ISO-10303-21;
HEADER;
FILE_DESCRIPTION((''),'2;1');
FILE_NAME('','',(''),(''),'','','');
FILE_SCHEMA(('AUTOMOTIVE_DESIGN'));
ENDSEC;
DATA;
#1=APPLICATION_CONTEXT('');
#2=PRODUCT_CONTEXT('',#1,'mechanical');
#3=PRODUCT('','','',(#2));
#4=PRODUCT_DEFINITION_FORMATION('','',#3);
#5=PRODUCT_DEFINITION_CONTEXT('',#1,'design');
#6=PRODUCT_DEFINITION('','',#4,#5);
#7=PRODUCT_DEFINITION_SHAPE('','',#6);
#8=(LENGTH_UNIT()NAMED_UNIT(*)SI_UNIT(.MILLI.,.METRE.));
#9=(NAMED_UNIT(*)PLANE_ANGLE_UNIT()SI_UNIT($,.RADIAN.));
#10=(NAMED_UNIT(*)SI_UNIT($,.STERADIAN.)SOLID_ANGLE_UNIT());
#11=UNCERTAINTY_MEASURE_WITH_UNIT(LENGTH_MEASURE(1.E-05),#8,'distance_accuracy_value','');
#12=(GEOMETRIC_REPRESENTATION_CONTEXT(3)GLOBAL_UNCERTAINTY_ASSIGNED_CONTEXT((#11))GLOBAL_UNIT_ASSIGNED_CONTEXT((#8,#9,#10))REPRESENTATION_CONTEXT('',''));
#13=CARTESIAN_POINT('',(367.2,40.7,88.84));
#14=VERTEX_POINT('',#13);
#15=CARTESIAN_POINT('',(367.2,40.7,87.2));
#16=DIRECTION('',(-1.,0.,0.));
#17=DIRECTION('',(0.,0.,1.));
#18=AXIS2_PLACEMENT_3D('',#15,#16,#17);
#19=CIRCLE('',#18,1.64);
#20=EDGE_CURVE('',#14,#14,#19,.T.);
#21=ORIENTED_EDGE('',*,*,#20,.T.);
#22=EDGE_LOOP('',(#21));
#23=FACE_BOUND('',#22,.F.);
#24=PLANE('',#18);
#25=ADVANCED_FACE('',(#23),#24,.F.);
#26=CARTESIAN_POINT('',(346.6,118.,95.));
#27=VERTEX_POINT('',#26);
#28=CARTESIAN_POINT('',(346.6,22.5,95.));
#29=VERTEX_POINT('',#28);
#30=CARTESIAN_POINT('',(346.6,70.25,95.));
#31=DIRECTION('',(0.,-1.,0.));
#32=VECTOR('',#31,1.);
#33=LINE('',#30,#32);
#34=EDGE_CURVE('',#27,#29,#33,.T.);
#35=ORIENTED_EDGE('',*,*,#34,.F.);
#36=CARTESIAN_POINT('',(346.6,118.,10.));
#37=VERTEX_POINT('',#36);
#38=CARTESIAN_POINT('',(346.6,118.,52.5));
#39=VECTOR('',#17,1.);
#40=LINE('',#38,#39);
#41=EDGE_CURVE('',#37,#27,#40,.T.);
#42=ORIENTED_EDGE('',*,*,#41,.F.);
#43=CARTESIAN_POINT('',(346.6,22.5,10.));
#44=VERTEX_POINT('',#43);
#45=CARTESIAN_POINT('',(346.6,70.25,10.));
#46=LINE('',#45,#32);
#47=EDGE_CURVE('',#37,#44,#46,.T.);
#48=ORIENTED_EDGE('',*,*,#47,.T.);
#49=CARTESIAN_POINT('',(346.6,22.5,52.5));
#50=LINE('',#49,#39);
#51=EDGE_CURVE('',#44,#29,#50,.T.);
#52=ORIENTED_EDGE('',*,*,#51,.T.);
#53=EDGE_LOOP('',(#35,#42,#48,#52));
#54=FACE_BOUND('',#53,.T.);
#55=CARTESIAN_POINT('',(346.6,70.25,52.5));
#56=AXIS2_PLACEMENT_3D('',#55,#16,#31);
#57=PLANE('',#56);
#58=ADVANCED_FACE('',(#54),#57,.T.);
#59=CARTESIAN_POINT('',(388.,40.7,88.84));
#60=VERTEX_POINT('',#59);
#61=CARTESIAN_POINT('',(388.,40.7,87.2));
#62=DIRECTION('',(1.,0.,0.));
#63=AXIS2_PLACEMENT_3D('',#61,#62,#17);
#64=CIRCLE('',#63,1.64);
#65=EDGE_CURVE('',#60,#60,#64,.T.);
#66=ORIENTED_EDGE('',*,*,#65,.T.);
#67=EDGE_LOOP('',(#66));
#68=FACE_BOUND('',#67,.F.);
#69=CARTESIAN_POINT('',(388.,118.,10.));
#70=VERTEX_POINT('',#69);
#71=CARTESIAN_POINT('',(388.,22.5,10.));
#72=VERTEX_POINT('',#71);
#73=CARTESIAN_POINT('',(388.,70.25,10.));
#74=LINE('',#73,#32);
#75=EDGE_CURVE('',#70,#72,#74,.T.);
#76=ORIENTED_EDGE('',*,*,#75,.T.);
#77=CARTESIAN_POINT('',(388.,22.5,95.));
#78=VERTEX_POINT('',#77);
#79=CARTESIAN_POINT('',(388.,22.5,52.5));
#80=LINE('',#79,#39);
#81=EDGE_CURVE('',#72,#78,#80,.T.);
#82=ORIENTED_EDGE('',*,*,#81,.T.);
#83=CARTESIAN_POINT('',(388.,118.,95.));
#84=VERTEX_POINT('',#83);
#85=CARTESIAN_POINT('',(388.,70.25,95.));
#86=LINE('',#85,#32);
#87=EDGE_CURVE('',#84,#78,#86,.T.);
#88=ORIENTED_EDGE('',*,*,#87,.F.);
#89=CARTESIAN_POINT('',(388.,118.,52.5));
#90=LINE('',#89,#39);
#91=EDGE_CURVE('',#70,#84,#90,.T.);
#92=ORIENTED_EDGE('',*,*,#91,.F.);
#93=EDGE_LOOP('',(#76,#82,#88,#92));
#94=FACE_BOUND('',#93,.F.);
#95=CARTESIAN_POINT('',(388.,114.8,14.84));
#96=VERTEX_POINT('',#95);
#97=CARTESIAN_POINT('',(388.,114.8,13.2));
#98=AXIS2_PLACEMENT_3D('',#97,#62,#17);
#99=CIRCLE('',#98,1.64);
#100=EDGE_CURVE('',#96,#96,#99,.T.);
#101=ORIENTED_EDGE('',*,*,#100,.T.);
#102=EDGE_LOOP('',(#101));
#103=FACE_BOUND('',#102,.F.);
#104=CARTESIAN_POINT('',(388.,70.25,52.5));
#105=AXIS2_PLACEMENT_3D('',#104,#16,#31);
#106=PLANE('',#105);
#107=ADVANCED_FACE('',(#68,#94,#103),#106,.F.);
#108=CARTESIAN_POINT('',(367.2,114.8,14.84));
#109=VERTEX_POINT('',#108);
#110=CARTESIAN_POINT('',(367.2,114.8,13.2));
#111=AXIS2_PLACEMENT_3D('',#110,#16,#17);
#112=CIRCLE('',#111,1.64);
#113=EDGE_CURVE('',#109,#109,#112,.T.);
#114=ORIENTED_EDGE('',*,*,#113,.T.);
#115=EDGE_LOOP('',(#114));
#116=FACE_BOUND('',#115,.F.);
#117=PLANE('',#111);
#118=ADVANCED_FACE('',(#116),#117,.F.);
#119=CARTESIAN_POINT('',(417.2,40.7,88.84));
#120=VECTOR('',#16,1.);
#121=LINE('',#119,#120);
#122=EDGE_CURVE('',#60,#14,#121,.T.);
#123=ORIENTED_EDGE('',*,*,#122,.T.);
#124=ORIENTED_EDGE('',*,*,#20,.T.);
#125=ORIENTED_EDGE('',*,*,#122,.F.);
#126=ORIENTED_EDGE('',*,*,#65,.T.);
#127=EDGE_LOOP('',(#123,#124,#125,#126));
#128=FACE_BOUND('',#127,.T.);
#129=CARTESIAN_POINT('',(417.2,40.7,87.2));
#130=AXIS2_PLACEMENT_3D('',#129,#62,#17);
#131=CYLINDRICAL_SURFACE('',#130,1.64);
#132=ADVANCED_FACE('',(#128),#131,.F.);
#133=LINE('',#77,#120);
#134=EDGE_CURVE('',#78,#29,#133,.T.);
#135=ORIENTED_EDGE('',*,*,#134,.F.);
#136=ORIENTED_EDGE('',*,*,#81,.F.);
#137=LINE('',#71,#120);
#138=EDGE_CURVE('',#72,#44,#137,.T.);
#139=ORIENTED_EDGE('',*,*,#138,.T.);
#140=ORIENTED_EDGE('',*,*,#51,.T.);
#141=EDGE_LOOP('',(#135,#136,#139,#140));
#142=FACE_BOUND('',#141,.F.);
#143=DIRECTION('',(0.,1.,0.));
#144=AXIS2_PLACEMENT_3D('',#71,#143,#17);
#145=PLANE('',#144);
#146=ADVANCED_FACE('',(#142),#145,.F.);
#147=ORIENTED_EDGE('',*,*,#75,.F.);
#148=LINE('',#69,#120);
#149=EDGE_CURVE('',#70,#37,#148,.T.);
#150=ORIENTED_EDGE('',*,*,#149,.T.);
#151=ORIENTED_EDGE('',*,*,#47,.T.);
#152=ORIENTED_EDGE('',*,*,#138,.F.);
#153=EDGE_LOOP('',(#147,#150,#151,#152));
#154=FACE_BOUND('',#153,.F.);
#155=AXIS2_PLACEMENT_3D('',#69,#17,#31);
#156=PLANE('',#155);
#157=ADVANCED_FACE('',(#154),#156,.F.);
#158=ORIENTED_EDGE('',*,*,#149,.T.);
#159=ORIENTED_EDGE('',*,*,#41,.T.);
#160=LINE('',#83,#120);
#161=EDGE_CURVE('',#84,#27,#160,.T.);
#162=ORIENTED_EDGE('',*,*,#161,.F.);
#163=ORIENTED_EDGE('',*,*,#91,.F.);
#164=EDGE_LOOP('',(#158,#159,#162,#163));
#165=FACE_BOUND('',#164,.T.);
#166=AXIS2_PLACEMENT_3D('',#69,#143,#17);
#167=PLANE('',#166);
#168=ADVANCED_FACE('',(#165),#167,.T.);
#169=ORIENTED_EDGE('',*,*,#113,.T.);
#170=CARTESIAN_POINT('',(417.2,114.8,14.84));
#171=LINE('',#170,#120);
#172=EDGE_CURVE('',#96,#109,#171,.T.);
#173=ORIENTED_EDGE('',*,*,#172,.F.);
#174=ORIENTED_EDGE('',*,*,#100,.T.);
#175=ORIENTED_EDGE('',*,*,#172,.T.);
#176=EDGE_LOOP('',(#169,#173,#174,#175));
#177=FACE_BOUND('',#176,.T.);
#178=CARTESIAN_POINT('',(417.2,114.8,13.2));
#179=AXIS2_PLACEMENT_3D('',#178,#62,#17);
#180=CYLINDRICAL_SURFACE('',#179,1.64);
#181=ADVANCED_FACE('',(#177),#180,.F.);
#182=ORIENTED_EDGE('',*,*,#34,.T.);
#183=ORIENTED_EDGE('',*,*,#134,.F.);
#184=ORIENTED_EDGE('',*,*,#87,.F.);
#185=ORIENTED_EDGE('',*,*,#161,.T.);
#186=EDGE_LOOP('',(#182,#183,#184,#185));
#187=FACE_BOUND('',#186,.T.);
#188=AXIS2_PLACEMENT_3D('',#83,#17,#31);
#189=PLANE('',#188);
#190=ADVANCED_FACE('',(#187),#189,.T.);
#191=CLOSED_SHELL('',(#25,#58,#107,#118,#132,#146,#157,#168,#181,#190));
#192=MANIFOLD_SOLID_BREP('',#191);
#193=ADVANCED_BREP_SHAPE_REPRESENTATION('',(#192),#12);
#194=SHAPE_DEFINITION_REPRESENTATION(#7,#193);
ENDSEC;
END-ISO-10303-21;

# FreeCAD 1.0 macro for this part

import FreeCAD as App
import Part
import Sketcher

V = App.Vector
Q = App.Units.Quantity

doc = App.newDocument("Part")
body = doc.addObject("PartDesign::Body", "Body")

sketch1 = body.newObject("Sketcher::SketchObject", "Sketch")
sketch1.AttachmentSupport = (doc.getObject("YZ_Plane"), [""])
sketch1.MapMode = "FlatFace"
sketch1.AttachmentOffset = App.Placement(V(0, 0, 417.2), App.Rotation())
sketch1.addGeometry(Part.Circle(V(114.8, 13.2, 0), V(0, 0, 1), 1.6), False)
sketch1.addConstraint([
    Sketcher.Constraint("Diameter", 0, Q("3.28 mm")),
    Sketcher.Constraint("DistanceX", -1, 1, 0, 3, Q("114.8 mm")),
    Sketcher.Constraint("DistanceY", -1, 1, 0, 3, Q("13.2 mm")),
])
pad1 = body.newObject("PartDesign::Pad", "Pad")
pad1.Profile = sketch1
pad1.Length = 50
pad1.Reversed = True
body2 = doc.addObject("PartDesign::Body", "Body001")

sketch2 = body2.newObject("Sketcher::SketchObject", "Sketch001")
sketch2.AttachmentSupport = (doc.getObject("YZ_Plane001"), [""])
sketch2.MapMode = "FlatFace"
sketch2.AttachmentOffset = App.Placement(V(0, 0, 417.2), App.Rotation())
sketch2.addGeometry(Part.Circle(V(40.7, 87.2, 0), V(0, 0, 1), 1.6), False)
sketch2.addConstraint([
    Sketcher.Constraint("Diameter", 0, Q("3.28 mm")),
    Sketcher.Constraint("DistanceX", -1, 1, 0, 3, Q("40.7 mm")),
    Sketcher.Constraint("DistanceY", -1, 1, 0, 3, Q("87.2 mm")),
])
pad2 = body2.newObject("PartDesign::Pad", "Pad001")
pad2.Profile = sketch2
pad2.Length = 50
pad2.Reversed = True
body3 = doc.addObject("PartDesign::Body", "Body002")

sketch3 = body3.newObject("Sketcher::SketchObject", "Sketch002")
sketch3.AttachmentSupport = (doc.getObject("YZ_Plane002"), [""])
sketch3.MapMode = "FlatFace"
sketch3.AttachmentOffset = App.Placement(V(0, 0, 388), App.Rotation())
sketch3.addGeometry([
    Part.LineSegment(V(118, 95, 0), V(118, 10, 0)),
    Part.LineSegment(V(118, 10, 0), V(22, 10, 0)),
    Part.LineSegment(V(22, 10, 0), V(22, 95, 0)),
    Part.LineSegment(V(22, 95, 0), V(118, 95, 0)),
], False)
sketch3.addConstraint([
    Sketcher.Constraint("Coincident", 0, 2, 1, 1),
    Sketcher.Constraint("Coincident", 1, 2, 2, 1),
    Sketcher.Constraint("Coincident", 2, 2, 3, 1),
    Sketcher.Constraint("Coincident", 3, 2, 0, 1),
    Sketcher.Constraint("Vertical", 0),
    Sketcher.Constraint("Horizontal", 1),
    Sketcher.Constraint("Vertical", 2),
    Sketcher.Constraint("Horizontal", 3),
    Sketcher.Constraint("DistanceY", 0, 2, 0, 1, Q("85 mm")),
    Sketcher.Constraint("DistanceX", 1, 2, 1, 1, Q("95.5 mm")),
    Sketcher.Constraint("DistanceX", -1, 1, 0, 2, Q("118 mm")),
    Sketcher.Constraint("DistanceY", -1, 1, 0, 2, Q("10 mm")),
])
pad3 = body3.newObject("PartDesign::Pad", "Pad002")
pad3.Profile = sketch3
pad3.Length = 41.4
pad3.Reversed = True
doc.recompute()

boolean = body3.newObject("PartDesign::Boolean", "Boolean")
boolean.Type = "Cut"
boolean.addObjects([body2])
doc.recompute()

boolean2 = body3.newObject("PartDesign::Boolean", "Boolean001")
boolean2.Type = "Cut"
boolean2.addObjects([body])

doc.recompute()
